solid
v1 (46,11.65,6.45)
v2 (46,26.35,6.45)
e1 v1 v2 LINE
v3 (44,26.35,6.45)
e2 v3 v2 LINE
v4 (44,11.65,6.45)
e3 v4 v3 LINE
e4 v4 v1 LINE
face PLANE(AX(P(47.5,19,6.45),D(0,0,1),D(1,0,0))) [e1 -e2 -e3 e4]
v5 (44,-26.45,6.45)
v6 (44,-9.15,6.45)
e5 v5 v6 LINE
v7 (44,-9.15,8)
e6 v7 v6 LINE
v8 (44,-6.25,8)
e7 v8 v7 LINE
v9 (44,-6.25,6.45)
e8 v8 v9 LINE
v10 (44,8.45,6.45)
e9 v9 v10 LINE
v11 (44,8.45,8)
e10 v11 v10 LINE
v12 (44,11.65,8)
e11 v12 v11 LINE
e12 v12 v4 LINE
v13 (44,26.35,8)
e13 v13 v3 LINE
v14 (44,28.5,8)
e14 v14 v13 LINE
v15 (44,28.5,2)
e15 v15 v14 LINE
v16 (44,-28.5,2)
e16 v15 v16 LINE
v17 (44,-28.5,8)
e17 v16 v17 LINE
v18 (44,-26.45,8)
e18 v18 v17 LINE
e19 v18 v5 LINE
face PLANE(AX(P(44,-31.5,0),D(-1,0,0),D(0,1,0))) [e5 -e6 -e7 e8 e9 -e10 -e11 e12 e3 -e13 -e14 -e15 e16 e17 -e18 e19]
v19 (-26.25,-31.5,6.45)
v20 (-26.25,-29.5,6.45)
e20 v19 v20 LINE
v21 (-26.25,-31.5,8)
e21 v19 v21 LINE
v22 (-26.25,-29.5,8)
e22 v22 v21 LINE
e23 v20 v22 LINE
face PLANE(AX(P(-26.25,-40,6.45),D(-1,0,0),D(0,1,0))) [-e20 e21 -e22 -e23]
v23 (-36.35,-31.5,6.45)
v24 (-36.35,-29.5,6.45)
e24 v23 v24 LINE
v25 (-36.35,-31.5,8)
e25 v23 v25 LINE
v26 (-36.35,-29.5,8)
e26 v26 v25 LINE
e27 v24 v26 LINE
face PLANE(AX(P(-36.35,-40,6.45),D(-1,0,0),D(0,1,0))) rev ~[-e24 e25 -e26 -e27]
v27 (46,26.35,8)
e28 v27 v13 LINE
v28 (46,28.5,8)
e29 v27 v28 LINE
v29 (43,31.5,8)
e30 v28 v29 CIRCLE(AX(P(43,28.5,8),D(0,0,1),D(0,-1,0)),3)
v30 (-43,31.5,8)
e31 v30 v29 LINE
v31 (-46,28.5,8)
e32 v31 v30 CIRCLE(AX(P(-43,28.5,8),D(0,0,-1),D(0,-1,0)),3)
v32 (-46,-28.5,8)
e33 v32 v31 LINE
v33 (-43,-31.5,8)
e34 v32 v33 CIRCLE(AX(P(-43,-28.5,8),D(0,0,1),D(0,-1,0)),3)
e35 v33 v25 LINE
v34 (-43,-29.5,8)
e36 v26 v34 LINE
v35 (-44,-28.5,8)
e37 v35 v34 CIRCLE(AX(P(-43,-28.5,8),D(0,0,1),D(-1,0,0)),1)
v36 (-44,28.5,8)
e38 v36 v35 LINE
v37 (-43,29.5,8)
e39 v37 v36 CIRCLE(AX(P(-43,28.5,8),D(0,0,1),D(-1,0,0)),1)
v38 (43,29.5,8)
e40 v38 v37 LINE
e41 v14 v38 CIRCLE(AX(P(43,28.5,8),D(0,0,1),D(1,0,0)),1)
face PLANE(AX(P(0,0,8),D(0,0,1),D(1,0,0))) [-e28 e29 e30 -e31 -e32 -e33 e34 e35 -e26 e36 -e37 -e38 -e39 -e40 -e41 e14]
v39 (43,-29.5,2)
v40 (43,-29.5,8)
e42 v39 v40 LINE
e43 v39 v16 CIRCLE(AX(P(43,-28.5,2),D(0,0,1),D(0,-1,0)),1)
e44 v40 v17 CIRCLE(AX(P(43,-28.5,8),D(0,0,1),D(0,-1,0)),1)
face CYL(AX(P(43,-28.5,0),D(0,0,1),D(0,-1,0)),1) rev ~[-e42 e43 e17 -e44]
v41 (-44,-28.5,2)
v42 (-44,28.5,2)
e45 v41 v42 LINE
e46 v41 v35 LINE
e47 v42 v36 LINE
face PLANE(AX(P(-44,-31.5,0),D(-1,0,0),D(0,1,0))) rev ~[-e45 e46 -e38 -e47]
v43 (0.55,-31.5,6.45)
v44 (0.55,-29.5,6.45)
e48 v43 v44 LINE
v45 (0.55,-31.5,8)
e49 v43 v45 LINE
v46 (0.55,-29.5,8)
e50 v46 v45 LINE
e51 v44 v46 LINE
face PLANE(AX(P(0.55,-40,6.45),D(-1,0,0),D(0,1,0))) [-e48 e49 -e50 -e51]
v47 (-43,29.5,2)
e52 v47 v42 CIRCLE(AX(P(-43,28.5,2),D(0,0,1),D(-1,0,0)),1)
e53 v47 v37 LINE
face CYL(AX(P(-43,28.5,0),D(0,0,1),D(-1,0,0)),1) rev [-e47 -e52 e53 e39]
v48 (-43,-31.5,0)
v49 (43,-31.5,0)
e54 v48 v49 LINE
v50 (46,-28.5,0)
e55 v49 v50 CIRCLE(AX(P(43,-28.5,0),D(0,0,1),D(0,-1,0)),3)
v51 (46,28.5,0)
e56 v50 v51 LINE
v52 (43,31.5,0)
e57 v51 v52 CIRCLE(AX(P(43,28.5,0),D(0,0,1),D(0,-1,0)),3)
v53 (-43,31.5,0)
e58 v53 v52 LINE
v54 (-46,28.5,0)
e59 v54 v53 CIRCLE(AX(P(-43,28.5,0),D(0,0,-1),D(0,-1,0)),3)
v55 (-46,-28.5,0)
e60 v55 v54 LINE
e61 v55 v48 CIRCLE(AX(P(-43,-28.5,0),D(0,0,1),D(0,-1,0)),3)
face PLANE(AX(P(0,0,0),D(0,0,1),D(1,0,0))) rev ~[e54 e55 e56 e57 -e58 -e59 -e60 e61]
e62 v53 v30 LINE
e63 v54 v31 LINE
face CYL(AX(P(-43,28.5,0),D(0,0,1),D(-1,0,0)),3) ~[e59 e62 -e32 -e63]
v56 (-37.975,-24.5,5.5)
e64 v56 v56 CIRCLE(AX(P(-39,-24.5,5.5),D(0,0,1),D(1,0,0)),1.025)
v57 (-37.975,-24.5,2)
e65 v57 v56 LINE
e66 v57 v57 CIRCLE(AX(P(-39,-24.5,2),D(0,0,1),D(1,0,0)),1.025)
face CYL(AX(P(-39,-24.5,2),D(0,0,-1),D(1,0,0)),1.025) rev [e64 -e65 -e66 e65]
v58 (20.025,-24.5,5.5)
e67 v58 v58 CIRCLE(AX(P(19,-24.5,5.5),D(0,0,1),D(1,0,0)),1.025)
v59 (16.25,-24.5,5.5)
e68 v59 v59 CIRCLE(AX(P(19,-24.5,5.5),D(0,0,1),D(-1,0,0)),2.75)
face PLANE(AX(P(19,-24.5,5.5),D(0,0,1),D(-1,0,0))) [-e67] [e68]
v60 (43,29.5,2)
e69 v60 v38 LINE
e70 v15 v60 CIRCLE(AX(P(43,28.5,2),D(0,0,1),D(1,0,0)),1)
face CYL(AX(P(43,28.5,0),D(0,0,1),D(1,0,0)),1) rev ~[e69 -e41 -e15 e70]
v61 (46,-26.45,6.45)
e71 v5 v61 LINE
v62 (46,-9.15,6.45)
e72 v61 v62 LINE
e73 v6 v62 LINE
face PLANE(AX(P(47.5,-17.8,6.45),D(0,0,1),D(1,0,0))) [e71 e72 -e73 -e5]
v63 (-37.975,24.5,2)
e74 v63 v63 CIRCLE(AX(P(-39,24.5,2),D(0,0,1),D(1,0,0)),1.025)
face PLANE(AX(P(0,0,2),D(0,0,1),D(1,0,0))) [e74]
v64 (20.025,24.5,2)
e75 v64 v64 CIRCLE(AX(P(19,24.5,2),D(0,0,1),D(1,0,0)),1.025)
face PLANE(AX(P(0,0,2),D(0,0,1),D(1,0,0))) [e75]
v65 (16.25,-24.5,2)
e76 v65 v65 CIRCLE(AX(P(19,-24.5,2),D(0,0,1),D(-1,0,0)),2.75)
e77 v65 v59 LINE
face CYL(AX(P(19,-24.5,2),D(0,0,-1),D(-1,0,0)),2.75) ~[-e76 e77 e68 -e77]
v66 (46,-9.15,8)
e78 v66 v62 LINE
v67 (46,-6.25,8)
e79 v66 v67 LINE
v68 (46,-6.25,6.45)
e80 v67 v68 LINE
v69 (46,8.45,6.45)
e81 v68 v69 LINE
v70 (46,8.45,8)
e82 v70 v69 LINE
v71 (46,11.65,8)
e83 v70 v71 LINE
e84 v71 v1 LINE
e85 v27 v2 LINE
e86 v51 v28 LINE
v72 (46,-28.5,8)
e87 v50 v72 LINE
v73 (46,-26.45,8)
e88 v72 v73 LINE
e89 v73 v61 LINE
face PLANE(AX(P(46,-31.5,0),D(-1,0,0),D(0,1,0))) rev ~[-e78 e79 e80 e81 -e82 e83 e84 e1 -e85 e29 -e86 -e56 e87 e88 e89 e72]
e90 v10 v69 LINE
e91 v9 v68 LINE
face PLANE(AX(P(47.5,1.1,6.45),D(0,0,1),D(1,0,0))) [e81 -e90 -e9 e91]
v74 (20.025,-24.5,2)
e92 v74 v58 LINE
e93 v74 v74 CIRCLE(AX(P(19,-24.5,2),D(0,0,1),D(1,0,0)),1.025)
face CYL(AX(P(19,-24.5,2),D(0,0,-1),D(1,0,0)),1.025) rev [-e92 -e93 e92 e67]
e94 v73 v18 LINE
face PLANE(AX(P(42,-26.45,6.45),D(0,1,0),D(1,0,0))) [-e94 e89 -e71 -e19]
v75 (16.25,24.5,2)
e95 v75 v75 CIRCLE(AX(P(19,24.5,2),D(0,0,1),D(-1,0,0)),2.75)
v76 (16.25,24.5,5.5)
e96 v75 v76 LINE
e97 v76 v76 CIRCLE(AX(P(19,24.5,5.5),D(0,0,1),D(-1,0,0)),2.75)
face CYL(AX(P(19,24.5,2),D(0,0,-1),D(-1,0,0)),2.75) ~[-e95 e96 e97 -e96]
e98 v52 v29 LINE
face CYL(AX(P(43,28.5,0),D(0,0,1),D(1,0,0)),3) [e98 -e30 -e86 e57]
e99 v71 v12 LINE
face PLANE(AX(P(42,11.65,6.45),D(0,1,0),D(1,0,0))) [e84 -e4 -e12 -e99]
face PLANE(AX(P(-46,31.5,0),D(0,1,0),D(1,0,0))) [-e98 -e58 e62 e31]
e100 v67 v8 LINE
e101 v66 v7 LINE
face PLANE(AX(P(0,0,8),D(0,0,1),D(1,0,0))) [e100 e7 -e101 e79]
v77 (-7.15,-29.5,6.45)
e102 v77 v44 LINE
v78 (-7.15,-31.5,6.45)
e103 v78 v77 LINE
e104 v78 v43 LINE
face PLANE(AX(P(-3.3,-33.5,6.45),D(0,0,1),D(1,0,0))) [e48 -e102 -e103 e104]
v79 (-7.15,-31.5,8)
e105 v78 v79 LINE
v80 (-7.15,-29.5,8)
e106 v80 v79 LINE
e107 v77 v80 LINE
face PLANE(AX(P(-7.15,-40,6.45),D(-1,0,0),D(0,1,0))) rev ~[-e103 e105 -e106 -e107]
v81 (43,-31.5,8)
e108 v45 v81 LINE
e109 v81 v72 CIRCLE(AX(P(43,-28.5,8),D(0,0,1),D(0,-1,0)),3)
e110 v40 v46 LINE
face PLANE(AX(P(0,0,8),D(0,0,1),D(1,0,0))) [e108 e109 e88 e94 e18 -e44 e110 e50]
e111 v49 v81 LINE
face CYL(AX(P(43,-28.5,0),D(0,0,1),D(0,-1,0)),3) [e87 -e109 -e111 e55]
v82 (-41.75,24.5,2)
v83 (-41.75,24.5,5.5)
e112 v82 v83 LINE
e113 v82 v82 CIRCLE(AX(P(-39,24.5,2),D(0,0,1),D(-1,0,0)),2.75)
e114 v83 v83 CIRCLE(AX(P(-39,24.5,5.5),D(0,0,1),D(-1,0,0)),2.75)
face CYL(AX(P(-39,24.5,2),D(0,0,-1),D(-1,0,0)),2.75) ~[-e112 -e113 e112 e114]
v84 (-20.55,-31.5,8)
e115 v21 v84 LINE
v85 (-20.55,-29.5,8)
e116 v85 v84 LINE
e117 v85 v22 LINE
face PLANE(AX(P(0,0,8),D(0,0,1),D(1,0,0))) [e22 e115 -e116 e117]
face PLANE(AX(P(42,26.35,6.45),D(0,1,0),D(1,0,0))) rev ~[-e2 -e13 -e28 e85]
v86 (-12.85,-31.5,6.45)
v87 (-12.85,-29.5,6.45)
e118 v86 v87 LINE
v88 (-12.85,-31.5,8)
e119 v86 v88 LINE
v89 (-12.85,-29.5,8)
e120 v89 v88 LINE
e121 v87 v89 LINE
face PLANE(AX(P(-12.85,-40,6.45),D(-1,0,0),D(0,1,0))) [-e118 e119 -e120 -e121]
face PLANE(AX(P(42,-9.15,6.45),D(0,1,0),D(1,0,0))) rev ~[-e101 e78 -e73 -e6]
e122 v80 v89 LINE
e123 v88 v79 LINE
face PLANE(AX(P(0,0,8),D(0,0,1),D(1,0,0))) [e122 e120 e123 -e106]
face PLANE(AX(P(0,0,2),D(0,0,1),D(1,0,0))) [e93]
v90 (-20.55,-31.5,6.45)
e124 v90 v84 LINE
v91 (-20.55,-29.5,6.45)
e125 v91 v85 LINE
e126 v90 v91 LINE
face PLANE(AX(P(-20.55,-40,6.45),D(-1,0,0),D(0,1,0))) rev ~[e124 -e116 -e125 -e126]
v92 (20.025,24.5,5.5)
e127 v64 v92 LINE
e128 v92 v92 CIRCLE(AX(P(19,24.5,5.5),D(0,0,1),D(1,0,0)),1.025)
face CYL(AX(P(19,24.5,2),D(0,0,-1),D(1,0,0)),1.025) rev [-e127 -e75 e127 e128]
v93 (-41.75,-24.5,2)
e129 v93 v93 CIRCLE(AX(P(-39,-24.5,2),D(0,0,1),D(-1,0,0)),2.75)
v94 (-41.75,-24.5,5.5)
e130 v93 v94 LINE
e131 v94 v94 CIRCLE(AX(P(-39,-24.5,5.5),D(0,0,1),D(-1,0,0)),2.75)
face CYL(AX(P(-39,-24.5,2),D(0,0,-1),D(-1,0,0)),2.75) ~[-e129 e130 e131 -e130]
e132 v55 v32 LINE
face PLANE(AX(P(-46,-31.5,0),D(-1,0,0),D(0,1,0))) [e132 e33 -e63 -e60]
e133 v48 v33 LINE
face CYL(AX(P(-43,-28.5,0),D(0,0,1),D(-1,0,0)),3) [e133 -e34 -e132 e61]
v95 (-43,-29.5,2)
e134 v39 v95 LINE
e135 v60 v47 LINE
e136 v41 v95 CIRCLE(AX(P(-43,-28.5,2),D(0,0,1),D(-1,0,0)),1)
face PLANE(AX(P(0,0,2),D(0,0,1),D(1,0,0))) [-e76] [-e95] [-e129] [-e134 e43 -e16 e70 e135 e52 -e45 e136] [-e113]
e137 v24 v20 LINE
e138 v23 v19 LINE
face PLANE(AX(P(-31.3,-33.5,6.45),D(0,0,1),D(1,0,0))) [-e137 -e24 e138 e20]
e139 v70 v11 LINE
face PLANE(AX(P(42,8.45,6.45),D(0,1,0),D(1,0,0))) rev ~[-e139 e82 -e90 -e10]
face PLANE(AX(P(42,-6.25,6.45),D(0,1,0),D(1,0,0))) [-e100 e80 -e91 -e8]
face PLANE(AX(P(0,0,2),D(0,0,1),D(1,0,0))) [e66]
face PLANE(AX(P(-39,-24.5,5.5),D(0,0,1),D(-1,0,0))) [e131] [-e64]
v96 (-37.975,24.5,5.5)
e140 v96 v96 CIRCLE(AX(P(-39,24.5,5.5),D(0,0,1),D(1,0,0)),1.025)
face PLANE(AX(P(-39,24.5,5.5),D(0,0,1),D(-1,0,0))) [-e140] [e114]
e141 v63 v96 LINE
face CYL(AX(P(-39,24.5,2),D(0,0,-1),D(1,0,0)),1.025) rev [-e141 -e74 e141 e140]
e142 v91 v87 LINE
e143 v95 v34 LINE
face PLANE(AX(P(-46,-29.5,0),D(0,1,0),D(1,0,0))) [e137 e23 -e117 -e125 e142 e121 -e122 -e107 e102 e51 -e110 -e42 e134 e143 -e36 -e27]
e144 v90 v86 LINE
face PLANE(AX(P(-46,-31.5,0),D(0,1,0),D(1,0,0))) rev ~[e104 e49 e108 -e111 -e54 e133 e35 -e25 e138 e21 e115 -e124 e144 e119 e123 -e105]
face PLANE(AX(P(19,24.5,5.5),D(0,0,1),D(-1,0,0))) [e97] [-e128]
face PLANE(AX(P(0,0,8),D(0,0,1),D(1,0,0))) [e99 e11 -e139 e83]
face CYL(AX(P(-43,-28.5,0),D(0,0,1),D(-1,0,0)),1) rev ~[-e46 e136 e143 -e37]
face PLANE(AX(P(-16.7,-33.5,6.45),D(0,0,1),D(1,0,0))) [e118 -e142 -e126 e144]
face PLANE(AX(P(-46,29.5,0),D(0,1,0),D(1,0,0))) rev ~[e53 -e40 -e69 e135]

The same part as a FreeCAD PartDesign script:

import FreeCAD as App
import Part
import Sketcher

V = App.Vector


def edges_at(feature, points):
    """Names of the edges that pass closest to the given points."""
    edges = feature.Shape.Edges
    near = lambda p: min(range(len(edges)), key=lambda i: edges[i].distToShape(Part.Vertex(*p))[0])
    return sorted({f"Edge{near(p) + 1}" for p in points})


def faces_at(feature, points):
    """Names of the faces that lie closest to the given points."""
    faces = feature.Shape.Faces
    near = lambda p: min(range(len(faces)), key=lambda i: faces[i].distToShape(Part.Vertex(*p))[0])
    return sorted({f"Face{near(p) + 1}" for p in points})


def add_polygon(sketch, points):
    """Adds a closed chain of lines whose ends are joined by coincident constraints."""
    first, n = sketch.GeometryCount, len(points)
    for a, b in zip(points, points[1:] + points[:1]):
        sketch.addGeometry(Part.LineSegment(App.Vector(*a, 0), App.Vector(*b, 0)), False)
    for i in range(n):
        sketch.addConstraint(Sketcher.Constraint("Coincident", first + i, 2, first + (i + 1) % n, 1))

doc = App.newDocument("Part")
body = doc.addObject("PartDesign::Body", "Body")

# Sketch on XY plane
sketch1 = doc.addObject("Sketcher::SketchObject", "Sketch")
body.addObject(sketch1)
sketch1.AttachmentSupport = (doc.XY_Plane, [""])
sketch1.MapMode = "FlatFace"
add_polygon(sketch1, [(-46, 31.5), (-46, -31.5), (46, -31.5), (46, 31.5)])  # lines 0-3
sketch1.addConstraint([
    Sketcher.Constraint("Vertical", 0),
    Sketcher.Constraint("Horizontal", 1),
    Sketcher.Constraint("Vertical", 2),
    Sketcher.Constraint("Horizontal", 3),
    Sketcher.Constraint("Symmetric", 0, 2, 2, 2, -1, 1),
    Sketcher.Constraint("DistanceX", 1, 1, 1, 2, 92.0),
    Sketcher.Constraint("DistanceY", 0, 2, 0, 1, 63.0),
])
pad1 = doc.addObject("PartDesign::Pad", "Pad")
body.addObject(pad1)
pad1.Profile = sketch1
pad1.Length = 8
doc.recompute()

fillet = doc.addObject("PartDesign::Fillet", "Fillet")
body.addObject(fillet)
fillet.Base = (pad1, edges_at(pad1, [
    (46, -31.5, 4),
    (-46, -31.5, 4),
    (-46, 31.5, 4),
    (46, 31.5, 4),
]))
fillet.Radius = 3
doc.recompute()

thickness = doc.addObject("PartDesign::Thickness", "Thickness")
body.addObject(thickness)
thickness.Base = (fillet, faces_at(fillet, [(0, 0, 8)]))
thickness.Value = 2
thickness.Reversed = True
thickness.Join = "Intersection"

# Sketch on XY plane
sketch2 = doc.addObject("Sketcher::SketchObject", "Sketch001")
body.addObject(sketch2)
sketch2.AttachmentSupport = (doc.XY_Plane, [""])
sketch2.MapMode = "FlatFace"
sketch2.AttachmentOffset = App.Placement(V(0, 0, 6.45), App.Rotation())
add_polygon(sketch2, [(-36.35, -27), (-36.35, -40), (-26.25, -40), (-26.25, -27)])  # lines 0-3
sketch2.addConstraint([
    Sketcher.Constraint("Vertical", 0),
    Sketcher.Constraint("Horizontal", 1),
    Sketcher.Constraint("Vertical", 2),
    Sketcher.Constraint("Horizontal", 3),
    Sketcher.Constraint("DistanceY", 0, 2, 0, 1, 13.0),
    Sketcher.Constraint("DistanceX", 1, 1, 1, 2, 10.1),
    Sketcher.Constraint("DistanceY", 0, 2, -1, 1, 40.0),
    Sketcher.Constraint("DistanceX", 0, 2, -1, 1, 36.35),
])
pocket1 = doc.addObject("PartDesign::Pocket", "Pocket")
body.addObject(pocket1)
pocket1.Profile = sketch2
pocket1.Length = 4.5
pocket1.Reversed = True

# Sketch on XY plane
sketch3 = doc.addObject("Sketcher::SketchObject", "Sketch002")
body.addObject(sketch3)
sketch3.AttachmentSupport = (doc.XY_Plane, [""])
sketch3.MapMode = "FlatFace"
sketch3.AttachmentOffset = App.Placement(V(0, 0, 6.45), App.Rotation())
add_polygon(sketch3, [(-20.55, -27), (-20.55, -40), (-12.85, -40), (-12.85, -27)])  # lines 0-3
sketch3.addConstraint([
    Sketcher.Constraint("Vertical", 0),
    Sketcher.Constraint("Horizontal", 1),
    Sketcher.Constraint("Vertical", 2),
    Sketcher.Constraint("Horizontal", 3),
    Sketcher.Constraint("DistanceY", 0, 2, 0, 1, 13.0),
    Sketcher.Constraint("DistanceX", 1, 1, 1, 2, 7.7),
    Sketcher.Constraint("DistanceY", 0, 2, -1, 1, 40.0),
    Sketcher.Constraint("DistanceX", 0, 2, -1, 1, 20.55),
])
pocket2 = doc.addObject("PartDesign::Pocket", "Pocket001")
body.addObject(pocket2)
pocket2.Profile = sketch3
pocket2.Length = 4.7
pocket2.Reversed = True

# Sketch on XY plane
sketch4 = doc.addObject("Sketcher::SketchObject", "Sketch003")
body.addObject(sketch4)
sketch4.AttachmentSupport = (doc.XY_Plane, [""])
sketch4.MapMode = "FlatFace"
sketch4.AttachmentOffset = App.Placement(V(0, 0, 6.45), App.Rotation())
add_polygon(sketch4, [(-7.15, -27), (-7.15, -40), (0.55, -40), (0.55, -27)])  # lines 0-3
sketch4.addConstraint([
    Sketcher.Constraint("Vertical", 0),
    Sketcher.Constraint("Horizontal", 1),
    Sketcher.Constraint("Vertical", 2),
    Sketcher.Constraint("Horizontal", 3),
    Sketcher.Constraint("DistanceY", 0, 2, 0, 1, 13.0),
    Sketcher.Constraint("DistanceX", 1, 1, 1, 2, 7.7),
    Sketcher.Constraint("DistanceY", 0, 2, -1, 1, 40.0),
    Sketcher.Constraint("DistanceX", 0, 2, -1, 1, 7.15),
])
pocket3 = doc.addObject("PartDesign::Pocket", "Pocket002")
body.addObject(pocket3)
pocket3.Profile = sketch4
pocket3.Length = 4.7
pocket3.Reversed = True

# Sketch on XY plane
sketch5 = doc.addObject("Sketcher::SketchObject", "Sketch004")
body.addObject(sketch5)
sketch5.AttachmentSupport = (doc.XY_Plane, [""])
sketch5.MapMode = "FlatFace"
sketch5.AttachmentOffset = App.Placement(V(0, 0, 6.45), App.Rotation())
add_polygon(sketch5, [(42, -9.15), (42, -26.45), (53, -26.45), (53, -9.15)])  # lines 0-3
sketch5.addConstraint([
    Sketcher.Constraint("Vertical", 0),
    Sketcher.Constraint("Horizontal", 1),
    Sketcher.Constraint("Vertical", 2),
    Sketcher.Constraint("Horizontal", 3),
    Sketcher.Constraint("DistanceX", 1, 1, 1, 2, 11.0),
    Sketcher.Constraint("DistanceY", 0, 2, 0, 1, 17.3),
    Sketcher.Constraint("DistanceX", -1, 1, 0, 2, 42.0),
    Sketcher.Constraint("DistanceY", 0, 2, -1, 1, 26.45),
])
pocket4 = doc.addObject("PartDesign::Pocket", "Pocket003")
body.addObject(pocket4)
pocket4.Profile = sketch5
pocket4.Length = 14.6
pocket4.Reversed = True

# Sketch on XY plane
sketch6 = doc.addObject("Sketcher::SketchObject", "Sketch005")
body.addObject(sketch6)
sketch6.AttachmentSupport = (doc.XY_Plane, [""])
sketch6.MapMode = "FlatFace"
sketch6.AttachmentOffset = App.Placement(V(0, 0, 6.45), App.Rotation())
add_polygon(sketch6, [(42, 8.45), (42, -6.25), (53, -6.25), (53, 8.45)])  # lines 0-3
sketch6.addConstraint([
    Sketcher.Constraint("Vertical", 0),
    Sketcher.Constraint("Horizontal", 1),
    Sketcher.Constraint("Vertical", 2),
    Sketcher.Constraint("Horizontal", 3),
    Sketcher.Constraint("DistanceX", 1, 1, 1, 2, 11.0),
    Sketcher.Constraint("DistanceY", 0, 2, 0, 1, 14.7),
    Sketcher.Constraint("DistanceX", -1, 1, 0, 2, 42.0),
    Sketcher.Constraint("DistanceY", 0, 2, -1, 1, 6.25),
])
pocket5 = doc.addObject("PartDesign::Pocket", "Pocket004")
body.addObject(pocket5)
pocket5.Profile = sketch6
pocket5.Length = 16.3
pocket5.Reversed = True

# Sketch on XY plane
sketch7 = doc.addObject("Sketcher::SketchObject", "Sketch006")
body.addObject(sketch7)
sketch7.AttachmentSupport = (doc.XY_Plane, [""])
sketch7.MapMode = "FlatFace"
sketch7.AttachmentOffset = App.Placement(V(0, 0, 6.45), App.Rotation())
add_polygon(sketch7, [(42, 26.35), (42, 11.65), (53, 11.65), (53, 26.35)])  # lines 0-3
sketch7.addConstraint([
    Sketcher.Constraint("Vertical", 0),
    Sketcher.Constraint("Horizontal", 1),
    Sketcher.Constraint("Vertical", 2),
    Sketcher.Constraint("Horizontal", 3),
    Sketcher.Constraint("DistanceX", 1, 1, 1, 2, 11.0),
    Sketcher.Constraint("DistanceY", 0, 2, 0, 1, 14.7),
    Sketcher.Constraint("DistanceX", -1, 1, 0, 2, 42.0),
    Sketcher.Constraint("DistanceY", -1, 1, 0, 2, 11.65),
])
pocket6 = doc.addObject("PartDesign::Pocket", "Pocket005")
body.addObject(pocket6)
pocket6.Profile = sketch7
pocket6.Length = 16.3
pocket6.Reversed = True

# Sketch on XY plane
sketch8 = doc.addObject("Sketcher::SketchObject", "Sketch007")
body.addObject(sketch8)
sketch8.AttachmentSupport = (doc.XY_Plane, [""])
sketch8.MapMode = "FlatFace"
sketch8.AttachmentOffset = App.Placement(V(0, 0, 2), App.Rotation())
sketch8.addGeometry([
    Part.Circle(V(-39, -24.5, 0), V(0, 0, 1), 2.75),  # 0
    Part.Circle(V(-39, -24.5, 0), V(0, 0, 1), 1.025),  # 1
    Part.Circle(V(-39, 24.5, 0), V(0, 0, 1), 2.75),  # 2
    Part.Circle(V(-39, 24.5, 0), V(0, 0, 1), 1.025),  # 3
    Part.Circle(V(19, -24.5, 0), V(0, 0, 1), 2.75),  # 4
    Part.Circle(V(19, -24.5, 0), V(0, 0, 1), 1.025),  # 5
    Part.Circle(V(19, 24.5, 0), V(0, 0, 1), 2.75),  # 6
    Part.Circle(V(19, 24.5, 0), V(0, 0, 1), 1.025),  # 7
], False)
sketch8.addConstraint([
    Sketcher.Constraint("Coincident", 1, 3, 0, 3),
    Sketcher.Constraint("Coincident", 3, 3, 2, 3),
    Sketcher.Constraint("Coincident", 5, 3, 4, 3),
    Sketcher.Constraint("Coincident", 7, 3, 6, 3),
    Sketcher.Constraint("Equal", 0, 2),
    Sketcher.Constraint("Equal", 1, 3),
    Sketcher.Constraint("Equal", 2, 4),
    Sketcher.Constraint("Equal", 3, 5),
    Sketcher.Constraint("Equal", 4, 6),
    Sketcher.Constraint("Equal", 5, 7),
    Sketcher.Constraint("Symmetric", 0, 3, 2, 3, -1),
    Sketcher.Constraint("Symmetric", 4, 3, 6, 3, -1),
    Sketcher.Constraint("Horizontal", 1, 3, 4, 3),
    Sketcher.Constraint("Diameter", 0, 5.5),
    Sketcher.Constraint("Diameter", 1, 2.05),
    Sketcher.Constraint("DistanceX", 0, 3, -1, 1, 39.0),
    Sketcher.Constraint("DistanceX", -1, 1, 4, 3, 19.0),
    Sketcher.Constraint("DistanceY", 0, 3, 2, 3, 49.0),
])
pad2 = doc.addObject("PartDesign::Pad", "Pad001")
body.addObject(pad2)
pad2.Profile = sketch8
pad2.Length = 3.5

doc.recompute()
